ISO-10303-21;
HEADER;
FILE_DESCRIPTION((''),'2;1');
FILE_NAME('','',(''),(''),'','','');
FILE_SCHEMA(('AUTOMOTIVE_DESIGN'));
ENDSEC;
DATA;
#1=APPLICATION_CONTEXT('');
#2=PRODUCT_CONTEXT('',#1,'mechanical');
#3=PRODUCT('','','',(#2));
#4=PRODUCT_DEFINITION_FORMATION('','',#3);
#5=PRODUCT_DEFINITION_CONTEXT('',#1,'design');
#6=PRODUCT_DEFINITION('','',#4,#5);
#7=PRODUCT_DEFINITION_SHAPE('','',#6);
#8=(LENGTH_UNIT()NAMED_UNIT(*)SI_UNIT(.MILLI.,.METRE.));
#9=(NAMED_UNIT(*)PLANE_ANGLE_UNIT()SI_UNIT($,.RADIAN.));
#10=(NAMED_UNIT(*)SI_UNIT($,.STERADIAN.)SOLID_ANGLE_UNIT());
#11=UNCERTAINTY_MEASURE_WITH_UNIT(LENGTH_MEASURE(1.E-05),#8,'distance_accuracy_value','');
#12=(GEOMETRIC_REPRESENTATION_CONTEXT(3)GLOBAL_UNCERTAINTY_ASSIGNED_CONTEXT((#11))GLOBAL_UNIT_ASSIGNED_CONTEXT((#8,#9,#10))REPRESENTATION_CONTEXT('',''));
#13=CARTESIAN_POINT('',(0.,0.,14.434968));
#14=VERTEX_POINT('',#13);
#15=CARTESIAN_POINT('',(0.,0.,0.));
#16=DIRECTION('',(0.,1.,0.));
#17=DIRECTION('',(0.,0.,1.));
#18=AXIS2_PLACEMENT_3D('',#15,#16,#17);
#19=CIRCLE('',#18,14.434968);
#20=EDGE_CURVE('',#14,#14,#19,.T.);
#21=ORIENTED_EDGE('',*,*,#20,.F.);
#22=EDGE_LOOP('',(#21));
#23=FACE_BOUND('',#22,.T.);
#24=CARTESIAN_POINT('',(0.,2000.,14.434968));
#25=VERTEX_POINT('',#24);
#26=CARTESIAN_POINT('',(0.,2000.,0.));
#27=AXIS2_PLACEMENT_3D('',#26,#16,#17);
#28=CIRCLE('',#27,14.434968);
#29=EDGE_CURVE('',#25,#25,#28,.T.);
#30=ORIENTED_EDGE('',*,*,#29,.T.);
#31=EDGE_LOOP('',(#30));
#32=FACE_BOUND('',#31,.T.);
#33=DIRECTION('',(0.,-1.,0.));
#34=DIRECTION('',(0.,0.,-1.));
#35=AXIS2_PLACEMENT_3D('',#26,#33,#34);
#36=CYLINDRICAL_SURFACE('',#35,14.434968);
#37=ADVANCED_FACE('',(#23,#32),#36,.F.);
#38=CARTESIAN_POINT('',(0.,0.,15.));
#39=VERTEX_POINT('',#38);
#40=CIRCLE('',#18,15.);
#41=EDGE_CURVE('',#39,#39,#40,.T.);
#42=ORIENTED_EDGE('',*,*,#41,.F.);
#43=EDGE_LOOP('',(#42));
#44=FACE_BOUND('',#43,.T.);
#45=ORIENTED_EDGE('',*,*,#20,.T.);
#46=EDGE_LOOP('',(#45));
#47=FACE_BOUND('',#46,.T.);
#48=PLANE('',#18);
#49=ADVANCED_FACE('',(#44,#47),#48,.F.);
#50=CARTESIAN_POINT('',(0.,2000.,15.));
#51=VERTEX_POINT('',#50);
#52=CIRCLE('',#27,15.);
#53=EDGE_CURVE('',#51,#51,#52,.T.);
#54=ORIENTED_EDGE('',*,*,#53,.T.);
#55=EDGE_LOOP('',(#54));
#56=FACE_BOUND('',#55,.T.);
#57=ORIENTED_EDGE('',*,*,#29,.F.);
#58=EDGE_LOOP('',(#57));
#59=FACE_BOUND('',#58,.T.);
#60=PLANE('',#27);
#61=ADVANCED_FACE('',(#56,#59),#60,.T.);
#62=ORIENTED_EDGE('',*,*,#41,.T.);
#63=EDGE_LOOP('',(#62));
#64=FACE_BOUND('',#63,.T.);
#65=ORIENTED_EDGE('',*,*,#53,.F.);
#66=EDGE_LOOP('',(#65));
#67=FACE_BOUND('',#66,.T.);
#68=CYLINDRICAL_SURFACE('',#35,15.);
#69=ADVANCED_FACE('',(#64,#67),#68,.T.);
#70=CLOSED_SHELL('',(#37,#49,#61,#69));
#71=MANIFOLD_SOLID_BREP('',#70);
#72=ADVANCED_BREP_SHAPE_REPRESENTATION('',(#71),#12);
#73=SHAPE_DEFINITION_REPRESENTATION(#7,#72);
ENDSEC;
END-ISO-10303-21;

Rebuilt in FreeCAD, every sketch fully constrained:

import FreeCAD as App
import Part
import Sketcher
from FreeCAD import Vector
Q = App.Units.Quantity

doc = App.newDocument("Part")
body = doc.addObject("PartDesign::Body", "Body")

# Sketch on XZ plane
sketch1 = body.newObject("Sketcher::SketchObject", "Sketch")
sketch1.AttachmentSupport = (doc.getObject("XZ_Plane"), [""])
sketch1.MapMode = "FlatFace"
sketch1.addGeometry([
    Part.Circle(Vector(0, 0, 0), Vector(0, 0, 1), 15),
    Part.Circle(Vector(0, 0, 0), Vector(0, 0, 1), 14),
], False)
sketch1.addConstraint([
    Sketcher.Constraint("Coincident", 0, 3, -1, 1),
    Sketcher.Constraint("Coincident", 1, 3, -1, 1),
    Sketcher.Constraint("Diameter", 0, Q("30 mm")),
    Sketcher.Constraint("Diameter", 1, Q("28.869937 mm")),
])
pad1 = body.newObject("PartDesign::Pad", "Pad")
pad1.Profile = sketch1
pad1.Length = 2000
pad1.Reversed = True

doc.recompute()
